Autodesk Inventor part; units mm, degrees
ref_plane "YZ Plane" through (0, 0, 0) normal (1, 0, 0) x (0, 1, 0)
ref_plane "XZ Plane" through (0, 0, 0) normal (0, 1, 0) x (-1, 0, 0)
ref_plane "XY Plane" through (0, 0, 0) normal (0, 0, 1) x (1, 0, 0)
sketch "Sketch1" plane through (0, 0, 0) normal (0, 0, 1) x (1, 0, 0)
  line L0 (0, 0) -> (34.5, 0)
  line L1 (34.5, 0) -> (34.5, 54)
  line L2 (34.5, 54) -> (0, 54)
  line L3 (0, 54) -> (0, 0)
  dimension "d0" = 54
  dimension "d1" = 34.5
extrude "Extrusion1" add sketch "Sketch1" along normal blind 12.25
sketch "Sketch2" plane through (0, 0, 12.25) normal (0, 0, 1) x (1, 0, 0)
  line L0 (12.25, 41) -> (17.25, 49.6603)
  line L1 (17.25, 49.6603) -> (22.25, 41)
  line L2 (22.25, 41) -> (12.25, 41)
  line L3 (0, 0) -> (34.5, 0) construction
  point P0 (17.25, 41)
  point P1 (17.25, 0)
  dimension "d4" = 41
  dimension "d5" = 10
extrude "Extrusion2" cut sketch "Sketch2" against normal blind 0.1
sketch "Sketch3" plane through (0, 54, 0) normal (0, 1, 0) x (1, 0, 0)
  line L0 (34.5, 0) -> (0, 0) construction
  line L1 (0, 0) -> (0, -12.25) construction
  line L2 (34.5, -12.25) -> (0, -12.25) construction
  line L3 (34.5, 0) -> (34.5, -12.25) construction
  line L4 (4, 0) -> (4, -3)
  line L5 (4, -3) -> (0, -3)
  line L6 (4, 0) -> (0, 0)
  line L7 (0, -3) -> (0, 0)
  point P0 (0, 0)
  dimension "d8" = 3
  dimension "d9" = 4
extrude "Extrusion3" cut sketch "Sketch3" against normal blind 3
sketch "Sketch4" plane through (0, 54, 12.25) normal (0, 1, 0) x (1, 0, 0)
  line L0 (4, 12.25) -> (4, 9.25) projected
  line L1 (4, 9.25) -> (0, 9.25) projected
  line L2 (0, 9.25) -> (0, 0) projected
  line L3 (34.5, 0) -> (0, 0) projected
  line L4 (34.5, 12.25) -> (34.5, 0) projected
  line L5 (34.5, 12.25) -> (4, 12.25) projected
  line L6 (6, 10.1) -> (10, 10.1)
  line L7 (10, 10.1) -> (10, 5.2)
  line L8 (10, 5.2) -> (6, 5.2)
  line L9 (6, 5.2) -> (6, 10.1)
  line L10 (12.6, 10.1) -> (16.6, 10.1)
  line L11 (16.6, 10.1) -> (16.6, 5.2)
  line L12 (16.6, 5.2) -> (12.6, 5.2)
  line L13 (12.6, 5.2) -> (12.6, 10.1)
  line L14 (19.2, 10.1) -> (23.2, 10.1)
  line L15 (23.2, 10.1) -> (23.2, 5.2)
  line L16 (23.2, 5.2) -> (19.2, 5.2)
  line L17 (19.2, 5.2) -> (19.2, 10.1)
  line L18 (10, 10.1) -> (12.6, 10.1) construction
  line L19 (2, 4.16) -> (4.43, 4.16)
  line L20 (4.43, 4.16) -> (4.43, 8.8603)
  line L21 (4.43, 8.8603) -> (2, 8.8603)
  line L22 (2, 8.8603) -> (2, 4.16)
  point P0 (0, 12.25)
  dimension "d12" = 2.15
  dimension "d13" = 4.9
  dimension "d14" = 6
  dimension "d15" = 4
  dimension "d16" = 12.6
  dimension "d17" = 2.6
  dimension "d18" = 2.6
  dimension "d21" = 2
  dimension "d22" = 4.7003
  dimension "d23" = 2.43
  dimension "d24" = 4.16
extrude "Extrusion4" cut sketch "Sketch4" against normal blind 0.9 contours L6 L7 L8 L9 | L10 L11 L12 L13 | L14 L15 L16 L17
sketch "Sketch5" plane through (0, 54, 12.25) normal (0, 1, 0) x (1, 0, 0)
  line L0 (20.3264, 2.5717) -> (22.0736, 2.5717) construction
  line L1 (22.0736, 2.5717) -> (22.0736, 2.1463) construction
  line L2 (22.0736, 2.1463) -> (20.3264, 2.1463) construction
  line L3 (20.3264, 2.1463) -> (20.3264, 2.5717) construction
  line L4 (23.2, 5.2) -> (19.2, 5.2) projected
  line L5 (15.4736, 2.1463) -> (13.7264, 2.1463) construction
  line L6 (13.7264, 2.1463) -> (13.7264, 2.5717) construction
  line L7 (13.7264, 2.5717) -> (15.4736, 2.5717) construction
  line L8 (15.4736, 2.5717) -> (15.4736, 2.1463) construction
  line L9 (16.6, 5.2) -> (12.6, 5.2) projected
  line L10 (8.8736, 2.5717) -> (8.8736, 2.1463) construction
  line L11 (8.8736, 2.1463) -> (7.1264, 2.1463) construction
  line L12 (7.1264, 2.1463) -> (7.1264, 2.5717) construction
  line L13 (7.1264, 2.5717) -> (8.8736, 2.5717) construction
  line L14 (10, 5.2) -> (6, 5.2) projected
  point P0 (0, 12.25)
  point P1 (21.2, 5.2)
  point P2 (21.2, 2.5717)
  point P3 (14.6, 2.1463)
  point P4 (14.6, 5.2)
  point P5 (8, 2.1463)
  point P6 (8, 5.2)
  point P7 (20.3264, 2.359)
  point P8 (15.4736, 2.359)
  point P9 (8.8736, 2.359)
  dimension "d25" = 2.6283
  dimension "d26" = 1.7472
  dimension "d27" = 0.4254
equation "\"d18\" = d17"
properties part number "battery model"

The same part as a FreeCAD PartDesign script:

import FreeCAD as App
import Part
import Sketcher
Q = App.Units.Quantity


def add_polygon(sketch, points):
    """Adds a closed chain of lines whose ends are joined by coincident constraints."""
    first, n = sketch.GeometryCount, len(points)
    for a, b in zip(points, points[1:] + points[:1]):
        sketch.addGeometry(Part.LineSegment(App.Vector(*a, 0), App.Vector(*b, 0)), False)
    for i in range(n):
        sketch.addConstraint(Sketcher.Constraint("Coincident", first + i, 2, first + (i + 1) % n, 1))

doc = App.newDocument("Part")
body = doc.addObject("PartDesign::Body", "Body")

sketch1 = body.newObject("Sketcher::SketchObject", "Sketch")
sketch1.AttachmentSupport = (doc.getObject("XY_Plane"), [""])
sketch1.MapMode = "FlatFace"
add_polygon(sketch1, [(0, 54), (0, 0), (34, 0), (34, 54)])
sketch1.addConstraint(Sketcher.Constraint("Vertical", 0))
sketch1.addConstraint(Sketcher.Constraint("Horizontal", 1))
sketch1.addConstraint(Sketcher.Constraint("Vertical", 2))
sketch1.addConstraint(Sketcher.Constraint("Horizontal", 3))
sketch1.addConstraint(Sketcher.Constraint("Coincident", 0, 2, -1, 1))
sketch1.addConstraint(Sketcher.Constraint("DistanceY", 0, 2, 0, 1, Q("54 mm")))
sketch1.addConstraint(Sketcher.Constraint("DistanceX", 1, 1, 1, 2, Q("34.5 mm")))
pad1 = body.newObject("PartDesign::Pad", "Pad")
pad1.Profile = sketch1
pad1.Length = 12.25

sketch2 = body.newObject("Sketcher::SketchObject", "Sketch001")
sketch2.AttachmentSupport = (doc.getObject("XY_Plane"), [""])
sketch2.MapMode = "FlatFace"
sketch2.AttachmentOffset = App.Placement(App.Vector(0, 0, 12.25), App.Rotation())
add_polygon(sketch2, [(17, 50), (12, 41), (22, 41)])
sketch2.addConstraint(Sketcher.Constraint("Horizontal", 1))
sketch2.addConstraint(Sketcher.Constraint("Equal", 0, 2))
sketch2.addConstraint(Sketcher.Constraint("DistanceX", 1, 1, 1, 2, Q("10 mm")))
sketch2.addConstraint(Sketcher.Constraint("Distance", 0, Q("10 mm")))
sketch2.addConstraint(Sketcher.Constraint("DistanceY", -1, 1, 0, 2, Q("41 mm")))
sketch2.addConstraint(Sketcher.Constraint("DistanceX", -1, 1, 0, 2, Q("12.25 mm")))
pocket1 = body.newObject("PartDesign::Pocket", "Pocket")
pocket1.Profile = sketch2
pocket1.Length = 0.1

sketch3 = body.newObject("Sketcher::SketchObject", "Sketch002")
sketch3.AttachmentSupport = (doc.getObject("XZ_Plane"), [""])
sketch3.MapMode = "FlatFace"
sketch3.AttachmentOffset = App.Placement(App.Vector(0, 0, -54), App.Rotation())
add_polygon(sketch3, [(4, 3), (4, 0), (0, 0), (0, 3)])
sketch3.addConstraint(Sketcher.Constraint("Vertical", 0))
sketch3.addConstraint(Sketcher.Constraint("Horizontal", 1))
sketch3.addConstraint(Sketcher.Constraint("Vertical", 2))
sketch3.addConstraint(Sketcher.Constraint("Horizontal", 3))
sketch3.addConstraint(Sketcher.Constraint("Coincident", 1, 2, -1, 1))
sketch3.addConstraint(Sketcher.Constraint("DistanceX", 1, 2, 1, 1, Q("4 mm")))
sketch3.addConstraint(Sketcher.Constraint("DistanceY", 0, 2, 0, 1, Q("3 mm")))
pocket2 = body.newObject("PartDesign::Pocket", "Pocket001")
pocket2.Profile = sketch3
pocket2.Length = 3
pocket2.Reversed = True

sketch4 = body.newObject("Sketcher::SketchObject", "Sketch003")
sketch4.AttachmentSupport = (doc.getObject("XZ_Plane"), [""])
sketch4.MapMode = "FlatFace"
sketch4.AttachmentOffset = App.Placement(App.Vector(0, 0, -54), App.Rotation())
add_polygon(sketch4, [(10, 2.1), (6, 2.1), (6, 7), (10, 7)])
add_polygon(sketch4, [(16.6, 2.1), (12.6, 2.1), (12.6, 7), (16.6, 7)])
add_polygon(sketch4, [(23.2, 2.1), (19.2, 2.1), (19.2, 7), (23.2, 7)])
sketch4.addConstraint(Sketcher.Constraint("Horizontal", 0))
sketch4.addConstraint(Sketcher.Constraint("Vertical", 1))
sketch4.addConstraint(Sketcher.Constraint("Horizontal", 2))
sketch4.addConstraint(Sketcher.Constraint("Vertical", 3))
sketch4.addConstraint(Sketcher.Constraint("Horizontal", 4))
sketch4.addConstraint(Sketcher.Constraint("Vertical", 5))
sketch4.addConstraint(Sketcher.Constraint("Horizontal", 6))
sketch4.addConstraint(Sketcher.Constraint("Vertical", 7))
sketch4.addConstraint(Sketcher.Constraint("Horizontal", 8))
sketch4.addConstraint(Sketcher.Constraint("Vertical", 9))
sketch4.addConstraint(Sketcher.Constraint("Horizontal", 10))
sketch4.addConstraint(Sketcher.Constraint("Vertical", 11))
sketch4.addConstraint(Sketcher.Constraint("Horizontal", 3, 2, 4, 2))
sketch4.addConstraint(Sketcher.Constraint("Horizontal", 2, 2, 5, 2))
sketch4.addConstraint(Sketcher.Constraint("Horizontal", 7, 2, 8, 2))
sketch4.addConstraint(Sketcher.Constraint("Horizontal", 6, 2, 9, 2))
sketch4.addConstraint(Sketcher.Constraint("Equal", 2, 4))
sketch4.addConstraint(Sketcher.Constraint("Equal", 6, 8))
sketch4.addConstraint(Sketcher.Constraint("DistanceX", 0, 2, 0, 1, Q("4 mm")))
sketch4.addConstraint(Sketcher.Constraint("DistanceY", 1, 1, 1, 2, Q("4.9 mm")))
sketch4.addConstraint(Sketcher.Constraint("DistanceX", -1, 1, 0, 2, Q("6 mm")))
sketch4.addConstraint(Sketcher.Constraint("DistanceX", -1, 1, 4, 2, Q("12.6 mm")))
sketch4.addConstraint(Sketcher.Constraint("DistanceX", 7, 2, 8, 2, Q("2.6 mm")))
sketch4.addConstraint(Sketcher.Constraint("DistanceY", -1, 1, 0, 2, Q("2.15 mm")))
pocket3 = body.newObject("PartDesign::Pocket", "Pocket002")
pocket3.Profile = sketch4
pocket3.Length = 0.9
pocket3.Reversed = True

doc.recompute()
